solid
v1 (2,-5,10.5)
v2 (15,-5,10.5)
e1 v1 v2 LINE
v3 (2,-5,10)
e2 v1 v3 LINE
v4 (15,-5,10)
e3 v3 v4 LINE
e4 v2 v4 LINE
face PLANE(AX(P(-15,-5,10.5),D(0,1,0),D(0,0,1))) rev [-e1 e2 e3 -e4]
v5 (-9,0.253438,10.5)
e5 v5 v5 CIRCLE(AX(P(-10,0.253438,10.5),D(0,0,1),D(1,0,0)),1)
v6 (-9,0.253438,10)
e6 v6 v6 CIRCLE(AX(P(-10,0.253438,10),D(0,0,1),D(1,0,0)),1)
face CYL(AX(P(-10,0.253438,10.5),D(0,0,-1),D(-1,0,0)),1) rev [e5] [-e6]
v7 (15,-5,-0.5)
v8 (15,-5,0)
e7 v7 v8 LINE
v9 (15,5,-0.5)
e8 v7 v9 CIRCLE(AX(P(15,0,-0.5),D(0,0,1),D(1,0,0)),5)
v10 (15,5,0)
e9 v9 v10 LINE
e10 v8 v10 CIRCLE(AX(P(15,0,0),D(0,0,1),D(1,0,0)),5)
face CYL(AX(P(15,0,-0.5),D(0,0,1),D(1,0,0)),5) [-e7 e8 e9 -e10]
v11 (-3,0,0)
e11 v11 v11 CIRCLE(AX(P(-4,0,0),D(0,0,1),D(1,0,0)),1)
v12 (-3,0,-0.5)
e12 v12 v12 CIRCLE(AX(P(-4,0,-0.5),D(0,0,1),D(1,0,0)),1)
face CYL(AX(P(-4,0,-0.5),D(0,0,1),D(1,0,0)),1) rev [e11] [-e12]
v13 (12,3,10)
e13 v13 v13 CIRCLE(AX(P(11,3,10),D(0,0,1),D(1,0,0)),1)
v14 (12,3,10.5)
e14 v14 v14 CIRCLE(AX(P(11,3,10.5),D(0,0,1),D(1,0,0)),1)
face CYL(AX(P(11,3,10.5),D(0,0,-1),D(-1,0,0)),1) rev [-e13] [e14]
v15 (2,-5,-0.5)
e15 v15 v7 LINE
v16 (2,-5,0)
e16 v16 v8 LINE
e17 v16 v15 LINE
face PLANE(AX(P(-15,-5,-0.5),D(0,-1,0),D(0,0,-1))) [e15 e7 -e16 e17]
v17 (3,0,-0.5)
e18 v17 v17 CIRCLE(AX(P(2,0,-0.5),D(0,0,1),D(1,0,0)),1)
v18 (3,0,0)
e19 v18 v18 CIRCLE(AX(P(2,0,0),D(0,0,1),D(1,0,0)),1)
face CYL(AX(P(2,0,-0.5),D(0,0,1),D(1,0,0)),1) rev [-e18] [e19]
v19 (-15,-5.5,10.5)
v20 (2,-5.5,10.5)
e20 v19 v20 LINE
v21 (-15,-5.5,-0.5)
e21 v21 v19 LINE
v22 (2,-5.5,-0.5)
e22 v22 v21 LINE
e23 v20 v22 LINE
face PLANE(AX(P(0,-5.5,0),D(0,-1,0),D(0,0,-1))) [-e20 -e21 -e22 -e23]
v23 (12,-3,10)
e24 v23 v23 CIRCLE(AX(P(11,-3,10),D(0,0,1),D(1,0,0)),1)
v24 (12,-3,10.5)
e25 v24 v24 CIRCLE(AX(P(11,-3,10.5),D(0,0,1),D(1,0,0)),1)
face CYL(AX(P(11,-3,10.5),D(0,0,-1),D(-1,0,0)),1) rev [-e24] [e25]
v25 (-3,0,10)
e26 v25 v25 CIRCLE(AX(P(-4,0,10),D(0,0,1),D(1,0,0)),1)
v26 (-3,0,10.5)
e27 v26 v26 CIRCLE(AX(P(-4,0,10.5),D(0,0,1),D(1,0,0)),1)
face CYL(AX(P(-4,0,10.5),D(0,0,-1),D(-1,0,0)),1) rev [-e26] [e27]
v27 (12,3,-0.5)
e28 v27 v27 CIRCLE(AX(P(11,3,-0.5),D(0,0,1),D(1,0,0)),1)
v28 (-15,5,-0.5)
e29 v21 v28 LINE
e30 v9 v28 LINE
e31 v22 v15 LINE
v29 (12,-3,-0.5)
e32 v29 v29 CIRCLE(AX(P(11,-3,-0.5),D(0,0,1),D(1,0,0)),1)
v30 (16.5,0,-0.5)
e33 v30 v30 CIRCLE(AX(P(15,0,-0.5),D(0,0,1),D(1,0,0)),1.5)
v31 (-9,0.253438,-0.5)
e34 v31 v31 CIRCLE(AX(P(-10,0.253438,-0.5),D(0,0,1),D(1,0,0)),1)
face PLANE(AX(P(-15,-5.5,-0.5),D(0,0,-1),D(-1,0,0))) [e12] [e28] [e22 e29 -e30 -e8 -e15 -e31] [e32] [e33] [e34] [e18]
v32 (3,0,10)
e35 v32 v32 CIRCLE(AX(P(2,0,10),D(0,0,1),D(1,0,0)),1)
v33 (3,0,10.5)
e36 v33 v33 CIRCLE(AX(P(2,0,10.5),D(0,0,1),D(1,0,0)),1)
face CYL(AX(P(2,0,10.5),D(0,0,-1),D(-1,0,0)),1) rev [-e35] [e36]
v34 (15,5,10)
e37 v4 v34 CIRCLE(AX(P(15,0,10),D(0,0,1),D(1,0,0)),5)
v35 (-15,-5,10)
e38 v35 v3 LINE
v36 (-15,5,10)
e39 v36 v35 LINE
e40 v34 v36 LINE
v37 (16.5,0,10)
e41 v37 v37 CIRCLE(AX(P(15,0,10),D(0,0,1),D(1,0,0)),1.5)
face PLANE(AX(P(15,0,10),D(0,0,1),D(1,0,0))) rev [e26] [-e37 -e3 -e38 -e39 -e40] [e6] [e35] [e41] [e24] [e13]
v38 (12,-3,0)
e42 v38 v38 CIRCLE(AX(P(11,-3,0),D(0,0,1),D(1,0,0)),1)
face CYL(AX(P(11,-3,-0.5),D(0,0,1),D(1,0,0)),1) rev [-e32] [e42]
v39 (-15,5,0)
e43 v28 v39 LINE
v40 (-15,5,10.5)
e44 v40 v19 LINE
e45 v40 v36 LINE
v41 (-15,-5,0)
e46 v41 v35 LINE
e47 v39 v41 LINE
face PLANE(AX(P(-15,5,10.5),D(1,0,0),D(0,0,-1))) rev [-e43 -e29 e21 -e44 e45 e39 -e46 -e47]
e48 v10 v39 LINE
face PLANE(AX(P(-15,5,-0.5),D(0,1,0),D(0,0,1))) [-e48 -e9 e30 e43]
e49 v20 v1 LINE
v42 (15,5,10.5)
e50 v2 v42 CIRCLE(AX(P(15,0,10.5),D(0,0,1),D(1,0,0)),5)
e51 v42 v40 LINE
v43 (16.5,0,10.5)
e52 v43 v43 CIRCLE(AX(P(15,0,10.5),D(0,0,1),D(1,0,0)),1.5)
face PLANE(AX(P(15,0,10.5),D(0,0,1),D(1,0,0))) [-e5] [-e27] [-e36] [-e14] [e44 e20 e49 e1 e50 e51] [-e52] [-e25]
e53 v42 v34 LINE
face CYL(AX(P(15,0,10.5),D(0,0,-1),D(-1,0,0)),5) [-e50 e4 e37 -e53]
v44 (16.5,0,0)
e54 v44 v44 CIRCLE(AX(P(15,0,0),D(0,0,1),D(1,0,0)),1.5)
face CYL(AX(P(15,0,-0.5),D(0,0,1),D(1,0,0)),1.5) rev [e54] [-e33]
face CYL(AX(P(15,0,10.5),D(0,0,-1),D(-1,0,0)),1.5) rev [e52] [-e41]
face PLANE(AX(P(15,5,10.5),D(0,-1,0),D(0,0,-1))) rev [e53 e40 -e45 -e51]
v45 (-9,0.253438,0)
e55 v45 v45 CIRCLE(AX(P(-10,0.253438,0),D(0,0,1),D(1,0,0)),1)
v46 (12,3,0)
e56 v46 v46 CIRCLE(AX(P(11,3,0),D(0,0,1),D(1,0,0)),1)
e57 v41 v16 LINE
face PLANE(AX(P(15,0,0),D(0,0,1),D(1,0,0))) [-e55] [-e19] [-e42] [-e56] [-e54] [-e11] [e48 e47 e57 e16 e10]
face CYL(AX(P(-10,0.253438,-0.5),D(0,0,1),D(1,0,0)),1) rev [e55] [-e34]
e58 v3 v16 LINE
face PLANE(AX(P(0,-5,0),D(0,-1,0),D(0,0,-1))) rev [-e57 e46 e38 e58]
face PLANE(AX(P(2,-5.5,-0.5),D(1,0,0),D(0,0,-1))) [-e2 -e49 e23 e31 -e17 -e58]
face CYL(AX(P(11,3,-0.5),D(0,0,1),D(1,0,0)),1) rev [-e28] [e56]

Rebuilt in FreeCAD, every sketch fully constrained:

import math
import FreeCAD as App
import Part
import Sketcher

doc = App.newDocument("Part")
body = doc.addObject("PartDesign::Body", "Body")

sketch1 = body.newObject("Sketcher::SketchObject", "Sketch")
sketch1.AttachmentSupport = (doc.getObject("XY_Plane"), [""])
sketch1.MapMode = "FlatFace"
sketch1.AttachmentOffset = App.Placement(App.Vector(0, 0, 10), App.Rotation())
sketch1.addGeometry([
    Part.LineSegment(App.Vector(15, 5, 0), App.Vector(-15, 5, 0)),
    Part.LineSegment(App.Vector(-15, 5, 0), App.Vector(-15, -5, 0)),
    Part.LineSegment(App.Vector(-15, -5, 0), App.Vector(15, -5, 0)),
    Part.ArcOfCircle(Part.Circle(App.Vector(15, 0, 0), App.Vector(0, 0, 1), 5), math.radians(-90), math.radians(90)),
    Part.Circle(App.Vector(11, -3, 0), App.Vector(0, 0, 1), 1),
    Part.Circle(App.Vector(-10, 0.3, 0), App.Vector(0, 0, 1), 1),
    Part.Circle(App.Vector(-4, 0, 0), App.Vector(0, 0, 1), 1),
    Part.Circle(App.Vector(2, 0, 0), App.Vector(0, 0, 1), 1),
    Part.Circle(App.Vector(15, 0, 0), App.Vector(0, 0, 1), 1.5),
    Part.Circle(App.Vector(11, 3, 0), App.Vector(0, 0, 1), 1),
], False)
sketch1.addConstraint([
    Sketcher.Constraint("Coincident", 0, 2, 1, 1),
    Sketcher.Constraint("Coincident", 1, 2, 2, 1),
    Sketcher.Constraint("Tangent", 2, 2, 3, 1),
    Sketcher.Constraint("Tangent", 3, 2, 0, 1),
    Sketcher.Constraint("Horizontal", 0),
    Sketcher.Constraint("Vertical", 1),
    Sketcher.Constraint("Horizontal", 2),
    Sketcher.Constraint("Coincident", 8, 3, 3, 3),
    Sketcher.Constraint("Equal", 4, 5),
    Sketcher.Constraint("Equal", 5, 6),
    Sketcher.Constraint("Equal", 6, 7),
    Sketcher.Constraint("Equal", 7, 9),
    Sketcher.Constraint("Symmetric", 0, 2, 2, 2, -1, 1),
    Sketcher.Constraint("Symmetric", 4, 3, 9, 3, -1),
    Sketcher.Constraint("PointOnObject", 6, 3, -1),
    Sketcher.Constraint("PointOnObject", 7, 3, -1),
    Sketcher.Constraint("Diameter", 4, 2.0),
    Sketcher.Constraint("Diameter", 8, 3.0),
    Sketcher.Constraint("Radius", 3, 5.0),
    Sketcher.Constraint("DistanceX", 0, 2, 0, 1, 30.0),
    Sketcher.Constraint("DistanceX", -1, 1, 4, 3, 11.0),
    Sketcher.Constraint("DistanceY", 4, 3, -1, 1, 3.0),
    Sketcher.Constraint("DistanceX", 5, 3, -1, 1, 10.0),
    Sketcher.Constraint("DistanceX", 6, 3, -1, 1, 4.0),
    Sketcher.Constraint("DistanceX", -1, 1, 7, 3, 2.0),
    Sketcher.Constraint("DistanceY", -1, 1, 5, 3, 0.253438),
])
pad1 = body.newObject("PartDesign::Pad", "Pad")
pad1.Profile = sketch1
pad1.Length = 0.5
body2 = doc.addObject("PartDesign::Body", "Body001")

sketch2 = body2.newObject("Sketcher::SketchObject", "Sketch001")
sketch2.AttachmentSupport = (doc.getObject("XY_Plane001"), [""])
sketch2.MapMode = "FlatFace"
sketch2.addGeometry([
    Part.LineSegment(App.Vector(15, 5, 0), App.Vector(-15, 5, 0)),
    Part.LineSegment(App.Vector(-15, 5, 0), App.Vector(-15, -5, 0)),
    Part.LineSegment(App.Vector(-15, -5, 0), App.Vector(15, -5, 0)),
    Part.ArcOfCircle(Part.Circle(App.Vector(15, 0, 0), App.Vector(0, 0, 1), 5), math.radians(-90), math.radians(90)),
    Part.Circle(App.Vector(11, -3, 0), App.Vector(0, 0, 1), 1),
    Part.Circle(App.Vector(15, 0, 0), App.Vector(0, 0, 1), 1.5),
    Part.Circle(App.Vector(11, 3, 0), App.Vector(0, 0, 1), 1),
    Part.Circle(App.Vector(2, 0, 0), App.Vector(0, 0, 1), 1),
    Part.Circle(App.Vector(-4, 0, 0), App.Vector(0, 0, 1), 1),
    Part.Circle(App.Vector(-10, 0.3, 0), App.Vector(0, 0, 1), 1),
], False)
sketch2.addConstraint([
    Sketcher.Constraint("Coincident", 0, 2, 1, 1),
    Sketcher.Constraint("Coincident", 1, 2, 2, 1),
    Sketcher.Constraint("Tangent", 2, 2, 3, 1),
    Sketcher.Constraint("Tangent", 3, 2, 0, 1),
    Sketcher.Constraint("Horizontal", 0),
    Sketcher.Constraint("Vertical", 1),
    Sketcher.Constraint("Horizontal", 2),
    Sketcher.Constraint("Coincident", 5, 3, 3, 3),
    Sketcher.Constraint("Equal", 4, 6),
    Sketcher.Constraint("Equal", 6, 7),
    Sketcher.Constraint("Equal", 7, 8),
    Sketcher.Constraint("Equal", 8, 9),
    Sketcher.Constraint("Symmetric", 0, 2, 2, 2, -1, 1),
    Sketcher.Constraint("Symmetric", 4, 3, 6, 3, -1),
    Sketcher.Constraint("PointOnObject", 7, 3, -1),
    Sketcher.Constraint("PointOnObject", 8, 3, -1),
    Sketcher.Constraint("Diameter", 4, 2.0),
    Sketcher.Constraint("Diameter", 5, 3.0),
    Sketcher.Constraint("Radius", 3, 5.0),
    Sketcher.Constraint("DistanceX", 0, 2, 0, 1, 30.0),
    Sketcher.Constraint("DistanceX", -1, 1, 4, 3, 11.0),
    Sketcher.Constraint("DistanceY", 4, 3, -1, 1, 3.0),
    Sketcher.Constraint("DistanceX", -1, 1, 7, 3, 2.0),
    Sketcher.Constraint("DistanceX", 8, 3, -1, 1, 4.0),
    Sketcher.Constraint("DistanceX", 9, 3, -1, 1, 10.0),
    Sketcher.Constraint("DistanceY", -1, 1, 9, 3, 0.253438),
])
pad2 = body2.newObject("PartDesign::Pad", "Pad001")
pad2.Profile = sketch2
pad2.Length = 0.5
pad2.Reversed = True
body.AllowCompound = True
doc.recompute()

boolean = body.newObject("PartDesign::Boolean", "Boolean")
boolean.Type = "Fuse"
boolean.addObjects([body2])

sketch3 = body.newObject("Sketcher::SketchObject", "Sketch002")
sketch3.AttachmentSupport = (doc.getObject("XZ_Plane"), [""])
sketch3.MapMode = "FlatFace"
sketch3.AttachmentOffset = App.Placement(App.Vector(0, 0, 5), App.Rotation())
sketch3.addGeometry([
    Part.LineSegment(App.Vector(-15, 0, 0), App.Vector(-15, 10, 0)),
    Part.LineSegment(App.Vector(-15, 10, 0), App.Vector(2, 10, 0)),
    Part.LineSegment(App.Vector(2, 10, 0), App.Vector(2, 0, 0)),
    Part.LineSegment(App.Vector(2, 0, 0), App.Vector(-15, 0, 0)),
], False)
sketch3.addConstraint([
    Sketcher.Constraint("Coincident", 0, 2, 1, 1),
    Sketcher.Constraint("Coincident", 1, 2, 2, 1),
    Sketcher.Constraint("Coincident", 2, 2, 3, 1),
    Sketcher.Constraint("Coincident", 3, 2, 0, 1),
    Sketcher.Constraint("Vertical", 0),
    Sketcher.Constraint("Horizontal", 1),
    Sketcher.Constraint("Vertical", 2),
    Sketcher.Constraint("Horizontal", 3),
    Sketcher.Constraint("DistanceX", 1, 1, 1, 2, 17.0),
    Sketcher.Constraint("DistanceY", 0, 1, 0, 2, 11.0),
    Sketcher.Constraint("DistanceX", 0, 2, -1, 1, 15.0),
    Sketcher.Constraint("DistanceY", -1, 1, 0, 2, 10.5),
])
pad3 = body.newObject("PartDesign::Pad", "Pad002")
pad3.Profile = sketch3
pad3.Length = 0.5

doc.recompute()
